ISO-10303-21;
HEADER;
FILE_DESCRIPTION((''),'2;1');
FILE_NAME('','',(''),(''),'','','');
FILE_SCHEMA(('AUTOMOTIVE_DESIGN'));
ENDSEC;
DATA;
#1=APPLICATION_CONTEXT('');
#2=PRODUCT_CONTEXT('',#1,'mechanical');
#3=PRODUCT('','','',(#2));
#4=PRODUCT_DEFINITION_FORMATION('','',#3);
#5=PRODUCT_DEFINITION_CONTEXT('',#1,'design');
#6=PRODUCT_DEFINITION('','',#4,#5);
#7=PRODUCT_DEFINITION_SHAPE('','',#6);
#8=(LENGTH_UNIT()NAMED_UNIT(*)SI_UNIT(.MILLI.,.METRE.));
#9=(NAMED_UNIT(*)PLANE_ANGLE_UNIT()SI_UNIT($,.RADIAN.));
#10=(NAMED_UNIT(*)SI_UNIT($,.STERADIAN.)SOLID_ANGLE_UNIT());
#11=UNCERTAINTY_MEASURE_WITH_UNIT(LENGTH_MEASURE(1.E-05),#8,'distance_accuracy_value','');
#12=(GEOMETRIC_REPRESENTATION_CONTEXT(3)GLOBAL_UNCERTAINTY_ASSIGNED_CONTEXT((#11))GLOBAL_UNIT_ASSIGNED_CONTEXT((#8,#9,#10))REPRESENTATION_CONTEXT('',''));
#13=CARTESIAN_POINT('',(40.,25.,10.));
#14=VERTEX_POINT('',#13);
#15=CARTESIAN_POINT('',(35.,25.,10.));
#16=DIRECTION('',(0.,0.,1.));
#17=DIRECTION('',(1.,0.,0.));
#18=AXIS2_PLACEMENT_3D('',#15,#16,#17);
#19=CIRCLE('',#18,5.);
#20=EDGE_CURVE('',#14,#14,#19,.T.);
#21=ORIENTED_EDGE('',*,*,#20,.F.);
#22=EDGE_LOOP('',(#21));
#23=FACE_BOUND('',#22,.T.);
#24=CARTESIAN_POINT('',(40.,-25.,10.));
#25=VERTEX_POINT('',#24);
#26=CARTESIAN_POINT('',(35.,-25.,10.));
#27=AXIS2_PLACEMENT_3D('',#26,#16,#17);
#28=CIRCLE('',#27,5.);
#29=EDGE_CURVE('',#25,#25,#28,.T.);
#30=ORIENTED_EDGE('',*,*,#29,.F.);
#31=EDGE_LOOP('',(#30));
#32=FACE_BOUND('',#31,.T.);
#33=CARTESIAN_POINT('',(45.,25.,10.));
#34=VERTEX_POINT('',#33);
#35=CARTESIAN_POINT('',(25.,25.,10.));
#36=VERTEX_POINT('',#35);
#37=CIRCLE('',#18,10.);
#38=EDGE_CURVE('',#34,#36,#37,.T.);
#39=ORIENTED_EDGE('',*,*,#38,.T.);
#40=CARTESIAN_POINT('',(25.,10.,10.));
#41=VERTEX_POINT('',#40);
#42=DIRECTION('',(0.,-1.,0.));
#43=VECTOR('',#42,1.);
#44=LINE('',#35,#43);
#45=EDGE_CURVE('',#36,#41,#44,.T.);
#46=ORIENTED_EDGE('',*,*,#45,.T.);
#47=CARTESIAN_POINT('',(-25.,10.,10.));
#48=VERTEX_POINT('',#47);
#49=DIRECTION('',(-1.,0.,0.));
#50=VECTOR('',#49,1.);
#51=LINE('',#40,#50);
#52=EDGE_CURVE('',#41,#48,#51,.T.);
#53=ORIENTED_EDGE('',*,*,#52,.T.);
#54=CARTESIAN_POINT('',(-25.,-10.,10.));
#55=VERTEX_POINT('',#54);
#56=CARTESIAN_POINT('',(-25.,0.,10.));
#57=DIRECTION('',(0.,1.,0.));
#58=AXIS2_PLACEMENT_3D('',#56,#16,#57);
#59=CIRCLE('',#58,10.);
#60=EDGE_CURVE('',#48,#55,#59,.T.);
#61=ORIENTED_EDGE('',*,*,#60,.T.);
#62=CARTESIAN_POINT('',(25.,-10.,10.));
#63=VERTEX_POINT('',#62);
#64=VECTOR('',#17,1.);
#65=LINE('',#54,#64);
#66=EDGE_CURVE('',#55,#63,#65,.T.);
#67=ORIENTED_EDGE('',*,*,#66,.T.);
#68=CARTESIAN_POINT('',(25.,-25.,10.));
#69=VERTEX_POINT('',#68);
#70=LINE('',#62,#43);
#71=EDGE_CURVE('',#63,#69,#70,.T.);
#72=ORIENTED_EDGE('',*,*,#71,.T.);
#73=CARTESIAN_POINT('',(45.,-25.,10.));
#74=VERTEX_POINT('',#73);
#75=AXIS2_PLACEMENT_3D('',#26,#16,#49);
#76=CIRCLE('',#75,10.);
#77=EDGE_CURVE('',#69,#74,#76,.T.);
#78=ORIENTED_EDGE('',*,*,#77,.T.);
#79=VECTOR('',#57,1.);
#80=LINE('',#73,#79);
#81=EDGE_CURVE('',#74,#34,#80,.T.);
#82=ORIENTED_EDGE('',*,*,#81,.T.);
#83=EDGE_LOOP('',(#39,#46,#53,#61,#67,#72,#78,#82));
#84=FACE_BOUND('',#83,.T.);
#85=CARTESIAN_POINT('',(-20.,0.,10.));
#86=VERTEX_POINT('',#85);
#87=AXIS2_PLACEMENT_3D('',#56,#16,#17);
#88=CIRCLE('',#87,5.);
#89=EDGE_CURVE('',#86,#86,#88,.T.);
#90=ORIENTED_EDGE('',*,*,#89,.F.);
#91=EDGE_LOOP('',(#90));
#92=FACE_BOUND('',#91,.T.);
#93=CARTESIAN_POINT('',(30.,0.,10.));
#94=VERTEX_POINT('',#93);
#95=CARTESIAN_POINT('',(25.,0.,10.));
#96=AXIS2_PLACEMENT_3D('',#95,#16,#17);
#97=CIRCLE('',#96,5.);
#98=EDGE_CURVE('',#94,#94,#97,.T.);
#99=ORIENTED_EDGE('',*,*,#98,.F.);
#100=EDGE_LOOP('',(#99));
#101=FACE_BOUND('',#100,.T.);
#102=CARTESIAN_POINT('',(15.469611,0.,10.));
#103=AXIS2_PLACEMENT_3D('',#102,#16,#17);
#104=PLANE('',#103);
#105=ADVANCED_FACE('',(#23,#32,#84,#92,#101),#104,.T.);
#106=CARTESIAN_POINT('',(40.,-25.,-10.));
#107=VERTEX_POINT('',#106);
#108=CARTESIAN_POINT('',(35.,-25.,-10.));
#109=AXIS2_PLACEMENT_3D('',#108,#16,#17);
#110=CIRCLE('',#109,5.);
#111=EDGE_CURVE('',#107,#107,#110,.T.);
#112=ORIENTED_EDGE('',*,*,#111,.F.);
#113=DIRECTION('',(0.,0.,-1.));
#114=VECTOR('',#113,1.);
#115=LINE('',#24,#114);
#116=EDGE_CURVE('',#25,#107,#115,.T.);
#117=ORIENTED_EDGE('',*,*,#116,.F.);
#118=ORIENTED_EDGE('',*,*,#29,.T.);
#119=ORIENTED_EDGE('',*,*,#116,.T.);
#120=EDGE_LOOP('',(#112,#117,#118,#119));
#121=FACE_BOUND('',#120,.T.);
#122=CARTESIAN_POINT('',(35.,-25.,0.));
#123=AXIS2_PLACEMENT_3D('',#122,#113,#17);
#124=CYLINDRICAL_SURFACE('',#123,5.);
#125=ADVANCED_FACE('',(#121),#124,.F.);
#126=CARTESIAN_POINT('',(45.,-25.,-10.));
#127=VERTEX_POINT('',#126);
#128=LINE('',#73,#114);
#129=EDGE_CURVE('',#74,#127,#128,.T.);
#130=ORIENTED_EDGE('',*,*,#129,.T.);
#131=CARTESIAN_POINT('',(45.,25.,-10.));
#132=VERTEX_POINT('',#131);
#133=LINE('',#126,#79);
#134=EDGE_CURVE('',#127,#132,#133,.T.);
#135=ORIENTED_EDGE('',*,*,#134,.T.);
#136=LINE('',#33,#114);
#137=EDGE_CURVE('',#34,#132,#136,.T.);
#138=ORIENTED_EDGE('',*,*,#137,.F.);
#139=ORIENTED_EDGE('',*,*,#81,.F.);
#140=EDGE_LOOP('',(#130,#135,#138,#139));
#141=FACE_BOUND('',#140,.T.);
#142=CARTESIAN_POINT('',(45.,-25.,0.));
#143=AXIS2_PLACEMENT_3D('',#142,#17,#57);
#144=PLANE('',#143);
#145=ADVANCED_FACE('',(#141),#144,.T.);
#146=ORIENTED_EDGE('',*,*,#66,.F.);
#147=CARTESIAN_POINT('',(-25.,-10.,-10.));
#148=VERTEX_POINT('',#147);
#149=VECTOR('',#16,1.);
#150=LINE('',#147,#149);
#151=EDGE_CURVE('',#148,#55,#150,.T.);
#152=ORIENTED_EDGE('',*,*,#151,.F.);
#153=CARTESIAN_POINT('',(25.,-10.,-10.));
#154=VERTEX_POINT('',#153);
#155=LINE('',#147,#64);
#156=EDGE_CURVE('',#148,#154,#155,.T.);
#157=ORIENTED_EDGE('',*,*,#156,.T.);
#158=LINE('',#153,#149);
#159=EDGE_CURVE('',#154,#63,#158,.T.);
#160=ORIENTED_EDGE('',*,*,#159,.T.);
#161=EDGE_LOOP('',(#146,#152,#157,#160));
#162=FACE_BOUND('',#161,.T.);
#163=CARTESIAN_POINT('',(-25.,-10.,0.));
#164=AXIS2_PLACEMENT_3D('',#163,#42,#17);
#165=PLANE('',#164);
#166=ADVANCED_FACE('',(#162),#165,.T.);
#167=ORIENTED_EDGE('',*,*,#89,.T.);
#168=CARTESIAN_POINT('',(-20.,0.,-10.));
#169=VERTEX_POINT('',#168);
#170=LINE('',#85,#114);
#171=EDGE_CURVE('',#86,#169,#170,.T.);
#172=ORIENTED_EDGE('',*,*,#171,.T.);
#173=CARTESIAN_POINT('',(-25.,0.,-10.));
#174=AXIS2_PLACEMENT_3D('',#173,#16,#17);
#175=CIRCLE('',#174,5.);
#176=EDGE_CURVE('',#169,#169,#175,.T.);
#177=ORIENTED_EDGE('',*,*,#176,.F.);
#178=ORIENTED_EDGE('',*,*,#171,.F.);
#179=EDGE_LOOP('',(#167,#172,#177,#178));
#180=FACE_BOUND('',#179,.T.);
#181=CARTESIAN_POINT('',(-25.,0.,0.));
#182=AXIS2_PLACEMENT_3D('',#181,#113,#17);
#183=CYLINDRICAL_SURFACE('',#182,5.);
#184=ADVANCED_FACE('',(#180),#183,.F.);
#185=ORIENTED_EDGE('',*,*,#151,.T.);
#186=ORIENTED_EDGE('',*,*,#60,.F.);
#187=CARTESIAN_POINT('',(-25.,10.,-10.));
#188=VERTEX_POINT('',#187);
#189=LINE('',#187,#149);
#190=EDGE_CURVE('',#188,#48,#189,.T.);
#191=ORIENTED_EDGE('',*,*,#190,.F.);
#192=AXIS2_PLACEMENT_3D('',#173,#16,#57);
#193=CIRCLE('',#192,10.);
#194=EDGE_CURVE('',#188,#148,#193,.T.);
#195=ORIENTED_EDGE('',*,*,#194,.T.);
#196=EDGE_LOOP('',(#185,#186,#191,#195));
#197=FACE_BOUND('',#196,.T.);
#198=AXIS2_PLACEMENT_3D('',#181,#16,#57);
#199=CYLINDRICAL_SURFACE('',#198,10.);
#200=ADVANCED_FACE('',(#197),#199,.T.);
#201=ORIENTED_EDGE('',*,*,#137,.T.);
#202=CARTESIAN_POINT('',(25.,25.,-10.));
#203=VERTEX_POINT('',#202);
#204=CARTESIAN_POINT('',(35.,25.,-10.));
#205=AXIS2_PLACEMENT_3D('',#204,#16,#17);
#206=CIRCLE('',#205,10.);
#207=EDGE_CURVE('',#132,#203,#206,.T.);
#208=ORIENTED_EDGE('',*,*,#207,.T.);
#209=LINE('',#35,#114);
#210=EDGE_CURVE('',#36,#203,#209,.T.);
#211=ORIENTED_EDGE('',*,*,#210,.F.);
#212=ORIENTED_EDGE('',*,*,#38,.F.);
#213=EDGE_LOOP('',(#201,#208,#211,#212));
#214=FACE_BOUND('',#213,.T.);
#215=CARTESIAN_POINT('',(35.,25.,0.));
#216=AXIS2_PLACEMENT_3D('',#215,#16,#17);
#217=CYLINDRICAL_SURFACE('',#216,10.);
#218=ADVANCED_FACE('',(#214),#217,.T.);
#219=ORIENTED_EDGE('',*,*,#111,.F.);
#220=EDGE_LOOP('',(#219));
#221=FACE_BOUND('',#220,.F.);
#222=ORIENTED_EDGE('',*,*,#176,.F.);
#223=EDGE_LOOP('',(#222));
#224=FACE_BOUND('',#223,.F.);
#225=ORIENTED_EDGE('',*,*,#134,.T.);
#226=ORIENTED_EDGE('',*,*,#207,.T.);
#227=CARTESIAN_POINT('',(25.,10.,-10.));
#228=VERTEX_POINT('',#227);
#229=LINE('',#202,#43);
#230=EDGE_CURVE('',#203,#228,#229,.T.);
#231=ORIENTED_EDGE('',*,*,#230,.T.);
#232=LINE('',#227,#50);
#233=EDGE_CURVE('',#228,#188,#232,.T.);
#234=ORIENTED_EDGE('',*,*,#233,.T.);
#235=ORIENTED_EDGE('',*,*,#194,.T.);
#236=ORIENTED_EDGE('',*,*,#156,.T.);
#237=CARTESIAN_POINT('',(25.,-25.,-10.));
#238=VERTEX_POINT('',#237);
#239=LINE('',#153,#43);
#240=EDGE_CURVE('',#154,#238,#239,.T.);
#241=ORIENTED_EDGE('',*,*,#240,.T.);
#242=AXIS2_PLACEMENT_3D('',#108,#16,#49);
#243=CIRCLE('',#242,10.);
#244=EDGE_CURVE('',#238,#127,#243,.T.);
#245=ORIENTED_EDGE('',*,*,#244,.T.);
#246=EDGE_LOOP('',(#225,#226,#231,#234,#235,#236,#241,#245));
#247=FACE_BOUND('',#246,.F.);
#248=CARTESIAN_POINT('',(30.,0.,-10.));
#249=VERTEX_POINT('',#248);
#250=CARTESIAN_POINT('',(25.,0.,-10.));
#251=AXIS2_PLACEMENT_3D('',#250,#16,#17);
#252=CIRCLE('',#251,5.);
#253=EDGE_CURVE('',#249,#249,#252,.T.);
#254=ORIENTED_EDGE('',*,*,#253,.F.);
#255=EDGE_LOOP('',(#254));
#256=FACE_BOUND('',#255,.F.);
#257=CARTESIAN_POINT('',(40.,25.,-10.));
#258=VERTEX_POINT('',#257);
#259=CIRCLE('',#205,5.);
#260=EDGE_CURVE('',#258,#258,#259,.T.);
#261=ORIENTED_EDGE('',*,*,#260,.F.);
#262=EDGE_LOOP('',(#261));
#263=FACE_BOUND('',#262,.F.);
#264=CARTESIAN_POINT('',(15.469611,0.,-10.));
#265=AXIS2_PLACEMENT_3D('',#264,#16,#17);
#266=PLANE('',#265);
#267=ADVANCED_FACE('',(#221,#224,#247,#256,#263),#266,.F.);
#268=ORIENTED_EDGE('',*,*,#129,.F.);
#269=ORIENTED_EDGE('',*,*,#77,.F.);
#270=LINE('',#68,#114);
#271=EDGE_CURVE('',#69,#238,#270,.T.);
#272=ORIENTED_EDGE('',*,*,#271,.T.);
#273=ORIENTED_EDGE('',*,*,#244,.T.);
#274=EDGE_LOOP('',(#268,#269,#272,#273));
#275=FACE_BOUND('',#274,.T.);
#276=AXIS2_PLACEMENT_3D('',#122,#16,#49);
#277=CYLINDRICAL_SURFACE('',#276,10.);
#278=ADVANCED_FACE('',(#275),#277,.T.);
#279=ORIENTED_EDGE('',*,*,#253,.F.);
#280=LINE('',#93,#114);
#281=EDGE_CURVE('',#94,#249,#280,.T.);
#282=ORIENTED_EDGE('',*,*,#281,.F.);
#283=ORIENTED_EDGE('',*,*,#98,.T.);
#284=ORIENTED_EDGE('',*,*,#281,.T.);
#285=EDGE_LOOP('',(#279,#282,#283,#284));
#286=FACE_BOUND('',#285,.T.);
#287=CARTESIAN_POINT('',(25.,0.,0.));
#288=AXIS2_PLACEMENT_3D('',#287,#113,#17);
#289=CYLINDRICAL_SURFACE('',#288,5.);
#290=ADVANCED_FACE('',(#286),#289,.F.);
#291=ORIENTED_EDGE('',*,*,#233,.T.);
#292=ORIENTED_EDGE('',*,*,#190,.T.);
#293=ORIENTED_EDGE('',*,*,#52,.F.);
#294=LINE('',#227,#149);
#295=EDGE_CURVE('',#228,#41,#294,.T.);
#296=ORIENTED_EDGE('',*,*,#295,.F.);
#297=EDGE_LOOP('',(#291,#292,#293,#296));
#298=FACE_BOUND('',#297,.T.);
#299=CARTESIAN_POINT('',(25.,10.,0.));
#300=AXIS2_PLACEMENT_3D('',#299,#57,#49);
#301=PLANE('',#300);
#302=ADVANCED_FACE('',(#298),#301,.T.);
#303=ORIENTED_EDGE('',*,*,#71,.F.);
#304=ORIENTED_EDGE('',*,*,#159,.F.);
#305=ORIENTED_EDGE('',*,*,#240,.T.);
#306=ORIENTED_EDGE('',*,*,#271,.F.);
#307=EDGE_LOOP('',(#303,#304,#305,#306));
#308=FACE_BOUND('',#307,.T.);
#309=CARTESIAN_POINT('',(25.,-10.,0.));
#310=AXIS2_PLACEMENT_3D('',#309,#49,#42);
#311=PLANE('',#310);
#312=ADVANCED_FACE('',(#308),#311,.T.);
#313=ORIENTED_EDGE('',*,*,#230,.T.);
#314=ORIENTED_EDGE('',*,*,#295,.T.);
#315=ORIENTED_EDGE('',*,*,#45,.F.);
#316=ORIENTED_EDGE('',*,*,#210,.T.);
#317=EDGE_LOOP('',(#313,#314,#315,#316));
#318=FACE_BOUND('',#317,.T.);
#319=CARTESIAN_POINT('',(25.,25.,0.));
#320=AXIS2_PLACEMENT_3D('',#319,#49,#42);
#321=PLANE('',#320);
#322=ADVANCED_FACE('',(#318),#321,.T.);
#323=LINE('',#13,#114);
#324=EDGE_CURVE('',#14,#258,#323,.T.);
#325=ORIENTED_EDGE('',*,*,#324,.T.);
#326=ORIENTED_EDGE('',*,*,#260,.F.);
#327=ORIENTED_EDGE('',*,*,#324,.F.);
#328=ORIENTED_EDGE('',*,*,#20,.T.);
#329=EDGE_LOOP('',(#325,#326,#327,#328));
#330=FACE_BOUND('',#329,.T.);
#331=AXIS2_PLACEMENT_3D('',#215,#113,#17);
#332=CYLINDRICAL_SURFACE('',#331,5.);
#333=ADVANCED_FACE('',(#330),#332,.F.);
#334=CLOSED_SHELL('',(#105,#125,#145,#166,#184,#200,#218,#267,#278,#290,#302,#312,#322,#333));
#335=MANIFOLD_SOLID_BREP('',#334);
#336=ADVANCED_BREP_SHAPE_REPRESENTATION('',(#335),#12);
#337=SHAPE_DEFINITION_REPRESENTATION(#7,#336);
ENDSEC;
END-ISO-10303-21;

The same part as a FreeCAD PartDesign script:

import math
import FreeCAD as App
import Part
import Sketcher

V = App.Vector
Q = App.Units.Quantity

doc = App.newDocument("Part")
body = doc.addObject("PartDesign::Body", "Body")

# Sketch on XY plane
sketch1 = body.newObject("Sketcher::SketchObject", "Sketch")
sketch1.AttachmentSupport = (doc.getObject("XY_Plane"), [""])
sketch1.MapMode = "FlatFace"
sketch1.addGeometry([
    Part.LineSegment(V(25, 25, 0), V(25, 10, 0)),  # 0
    Part.LineSegment(V(25, 10, 0), V(-25, 10, 0)),  # 1
    Part.ArcOfCircle(Part.Circle(V(-25, 0, 0), V(0, 0, 1), 10), math.radians(90), math.radians(270)),  # 2
    Part.LineSegment(V(-25, -10, 0), V(25, -10, 0)),  # 3
    Part.LineSegment(V(25, -10, 0), V(25, -25, 0)),  # 4
    Part.ArcOfCircle(Part.Circle(V(35, -25, 0), V(0, 0, 1), 10), math.radians(180), math.radians(360)),  # 5
    Part.LineSegment(V(45, -25, 0), V(45, 25, 0)),  # 6
    Part.ArcOfCircle(Part.Circle(V(35, 25, 0), V(0, 0, 1), 10), math.radians(0), math.radians(180)),  # 7
    Part.Circle(V(35, -25, 0), V(0, 0, 1), 5),  # 8
    Part.Circle(V(-25, 0, 0), V(0, 0, 1), 5),  # 9
    Part.Circle(V(25, 0, 0), V(0, 0, 1), 5),  # 10
    Part.Circle(V(35, 25, 0), V(0, 0, 1), 5),  # 11
], False)
sketch1.addConstraint([
    Sketcher.Constraint("Coincident", 0, 2, 1, 1),
    Sketcher.Constraint("Tangent", 1, 2, 2, 1),
    Sketcher.Constraint("Tangent", 2, 2, 3, 1),
    Sketcher.Constraint("Coincident", 3, 2, 4, 1),
    Sketcher.Constraint("Tangent", 4, 2, 5, 1),
    Sketcher.Constraint("Tangent", 5, 2, 6, 1),
    Sketcher.Constraint("Tangent", 6, 2, 7, 1),
    Sketcher.Constraint("Tangent", 7, 2, 0, 1),
    Sketcher.Constraint("Vertical", 0),
    Sketcher.Constraint("Horizontal", 1),
    Sketcher.Constraint("Horizontal", 3),
    Sketcher.Constraint("Vertical", 4),
    Sketcher.Constraint("Vertical", 6),
    Sketcher.Constraint("Coincident", 8, 3, 5, 3),
    Sketcher.Constraint("Coincident", 9, 3, 2, 3),
    Sketcher.Constraint("Coincident", 11, 3, 7, 3),
    Sketcher.Constraint("Equal", 2, 5),
    Sketcher.Constraint("Equal", 5, 7),
    Sketcher.Constraint("Equal", 8, 9),
    Sketcher.Constraint("Equal", 9, 10),
    Sketcher.Constraint("Equal", 10, 11),
    Sketcher.Constraint("Symmetric", 2, 3, 10, 3, -1, 1),
    Sketcher.Constraint("Symmetric", 0, 2, 2, 2, -1, 1),
    Sketcher.Constraint("Equal", 0, 4),
    Sketcher.Constraint("Equal", 3, 6),
    Sketcher.Constraint("Diameter", 8, Q("10 mm")),
    Sketcher.Constraint("Radius", 2, Q("10 mm")),
    Sketcher.Constraint("DistanceX", 1, 2, 1, 1, Q("50 mm")),
])
pad1 = body.newObject("PartDesign::Pad", "Pad")
pad1.Profile = sketch1
pad1.Length = 20
pad1.Midplane = True

doc.recompute()
